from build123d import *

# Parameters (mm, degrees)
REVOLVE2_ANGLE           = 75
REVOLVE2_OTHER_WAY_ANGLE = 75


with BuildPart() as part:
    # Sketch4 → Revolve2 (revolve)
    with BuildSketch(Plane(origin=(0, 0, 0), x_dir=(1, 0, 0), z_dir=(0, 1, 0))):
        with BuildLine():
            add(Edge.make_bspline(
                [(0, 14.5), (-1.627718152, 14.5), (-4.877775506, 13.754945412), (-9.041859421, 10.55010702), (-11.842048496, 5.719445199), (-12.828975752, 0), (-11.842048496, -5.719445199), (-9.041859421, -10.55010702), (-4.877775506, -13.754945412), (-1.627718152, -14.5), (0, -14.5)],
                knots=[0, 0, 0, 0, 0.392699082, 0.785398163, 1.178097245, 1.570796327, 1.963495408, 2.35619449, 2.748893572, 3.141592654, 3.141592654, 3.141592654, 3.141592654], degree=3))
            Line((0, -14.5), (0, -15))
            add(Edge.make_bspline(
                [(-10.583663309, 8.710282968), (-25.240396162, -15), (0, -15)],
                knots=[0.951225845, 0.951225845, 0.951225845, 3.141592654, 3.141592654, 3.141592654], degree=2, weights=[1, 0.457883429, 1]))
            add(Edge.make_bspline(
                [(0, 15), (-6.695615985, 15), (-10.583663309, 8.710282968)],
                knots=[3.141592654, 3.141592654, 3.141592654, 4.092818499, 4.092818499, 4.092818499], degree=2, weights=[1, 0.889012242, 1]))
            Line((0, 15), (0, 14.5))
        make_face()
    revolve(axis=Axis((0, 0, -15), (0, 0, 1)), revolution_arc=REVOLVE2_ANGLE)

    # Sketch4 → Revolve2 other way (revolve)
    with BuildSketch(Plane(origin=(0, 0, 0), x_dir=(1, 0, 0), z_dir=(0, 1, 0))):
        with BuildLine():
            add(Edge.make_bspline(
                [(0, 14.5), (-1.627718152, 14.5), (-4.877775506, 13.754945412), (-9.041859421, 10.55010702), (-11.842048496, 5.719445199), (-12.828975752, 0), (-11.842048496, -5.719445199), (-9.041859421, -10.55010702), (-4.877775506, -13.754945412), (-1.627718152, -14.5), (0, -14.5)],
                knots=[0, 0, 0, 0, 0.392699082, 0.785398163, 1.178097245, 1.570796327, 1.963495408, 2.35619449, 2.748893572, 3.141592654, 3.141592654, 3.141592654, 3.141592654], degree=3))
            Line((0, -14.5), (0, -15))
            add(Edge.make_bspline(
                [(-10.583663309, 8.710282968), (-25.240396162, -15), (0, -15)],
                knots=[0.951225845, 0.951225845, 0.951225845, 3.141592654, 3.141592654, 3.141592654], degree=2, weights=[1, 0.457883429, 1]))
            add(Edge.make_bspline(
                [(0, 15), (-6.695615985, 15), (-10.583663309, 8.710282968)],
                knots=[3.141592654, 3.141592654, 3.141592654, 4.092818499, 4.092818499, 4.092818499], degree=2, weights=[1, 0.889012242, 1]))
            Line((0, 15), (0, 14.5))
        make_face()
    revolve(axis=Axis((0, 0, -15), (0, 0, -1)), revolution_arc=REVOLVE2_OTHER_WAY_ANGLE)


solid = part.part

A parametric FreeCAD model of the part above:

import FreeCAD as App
import Part
import Sketcher

doc = App.newDocument("Part")
body = doc.addObject("PartDesign::Body", "Body")

# Sketch on XZ plane
sketch1 = doc.addObject("Sketcher::SketchObject", "Sketch")
body.addObject(sketch1)
sketch1.AttachmentSupport = (doc.XZ_Plane, [""])
sketch1.MapMode = "FlatFace"
sketch1.addGeometry([
    Part.BSplineCurve([App.Vector(0, -14.5, 0), App.Vector(-1.627718, -14.5, 0), App.Vector(-4.877776, -13.754945, 0), App.Vector(-9.041859, -10.550107, 0), App.Vector(-11.842048, -5.719445, 0), App.Vector(-12.828976, 0, 0), App.Vector(-11.842048, 5.719445, 0), App.Vector(-9.041859, 10.550107, 0), App.Vector(-4.877776, 13.754945, 0), App.Vector(-1.627718, 14.5, 0), App.Vector(0, 14.5, 0)], [4, 1, 1, 1, 1, 1, 1, 1, 4], [0, 0.392699082, 0.785398163, 1.178097245, 1.570796327, 1.963495408, 2.35619449, 2.748893572, 3.141592654], False, 3, [1, 1, 1, 1, 1, 1, 1, 1, 1, 1, 1], False),  # 0
    Part.LineSegment(App.Vector(0, -14.5, 0), App.Vector(0, -15, 0)),  # 1
    Part.BSplineCurve([App.Vector(0, -15, 0), App.Vector(-6.695616, -15, 0), App.Vector(-10.583663, -8.710283, 0)], [3, 3], [3.141592654, 4.092818499], False, 2, [1, 0.889012242, 1], False),  # 2
    Part.BSplineCurve([App.Vector(-10.583663, -8.710283, 0), App.Vector(-25.240396, 15, 0), App.Vector(0, 15, 0)], [3, 3], [0.951225845, 3.141592654], False, 2, [1, 0.457883429, 1], False),  # 3
    Part.LineSegment(App.Vector(0, 15, 0), App.Vector(0, 14.5, 0)),  # 4
], False)
sketch1.addConstraint([
    Sketcher.Constraint("Block", 0),
    Sketcher.Constraint("Block", 2),
    Sketcher.Constraint("Block", 3),
    Sketcher.Constraint("Coincident", 0, 1, 1, 1),
    Sketcher.Constraint("Coincident", 1, 2, 2, 1),
    Sketcher.Constraint("Coincident", 3, 2, 4, 1),
    Sketcher.Constraint("Coincident", 4, 2, 0, 2),
])
revolution = doc.addObject("PartDesign::Revolution", "Revolution")
body.addObject(revolution)
revolution.Profile = sketch1
revolution.ReferenceAxis = (sketch1, ["V_Axis"])
revolution.Angle = 75

# Sketch on XZ plane
sketch2 = doc.addObject("Sketcher::SketchObject", "Sketch001")
body.addObject(sketch2)
sketch2.AttachmentSupport = (doc.XZ_Plane, [""])
sketch2.MapMode = "FlatFace"
sketch2.addGeometry([
    Part.BSplineCurve([App.Vector(0, -14.5, 0), App.Vector(-1.627718, -14.5, 0), App.Vector(-4.877776, -13.754945, 0), App.Vector(-9.041859, -10.550107, 0), App.Vector(-11.842048, -5.719445, 0), App.Vector(-12.828976, 0, 0), App.Vector(-11.842048, 5.719445, 0), App.Vector(-9.041859, 10.550107, 0), App.Vector(-4.877776, 13.754945, 0), App.Vector(-1.627718, 14.5, 0), App.Vector(0, 14.5, 0)], [4, 1, 1, 1, 1, 1, 1, 1, 4], [0, 0.392699082, 0.785398163, 1.178097245, 1.570796327, 1.963495408, 2.35619449, 2.748893572, 3.141592654], False, 3, [1, 1, 1, 1, 1, 1, 1, 1, 1, 1, 1], False),  # 0
    Part.LineSegment(App.Vector(0, -14.5, 0), App.Vector(0, -15, 0)),  # 1
    Part.BSplineCurve([App.Vector(0, -15, 0), App.Vector(-6.695616, -15, 0), App.Vector(-10.583663, -8.710283, 0)], [3, 3], [3.141592654, 4.092818499], False, 2, [1, 0.889012242, 1], False),  # 2
    Part.BSplineCurve([App.Vector(-10.583663, -8.710283, 0), App.Vector(-25.240396, 15, 0), App.Vector(0, 15, 0)], [3, 3], [0.951225845, 3.141592654], False, 2, [1, 0.457883429, 1], False),  # 3
    Part.LineSegment(App.Vector(0, 15, 0), App.Vector(0, 14.5, 0)),  # 4
], False)
sketch2.addConstraint([
    Sketcher.Constraint("Block", 0),
    Sketcher.Constraint("Block", 2),
    Sketcher.Constraint("Block", 3),
    Sketcher.Constraint("Coincident", 0, 1, 1, 1),
    Sketcher.Constraint("Coincident", 1, 2, 2, 1),
    Sketcher.Constraint("Coincident", 3, 2, 4, 1),
    Sketcher.Constraint("Coincident", 4, 2, 0, 2),
])
revolution2 = doc.addObject("PartDesign::Revolution", "Revolution001")
body.addObject(revolution2)
revolution2.Profile = sketch2
revolution2.ReferenceAxis = (sketch2, ["V_Axis"])
revolution2.Angle = 75
revolution2.Reversed = True

doc.recompute()
